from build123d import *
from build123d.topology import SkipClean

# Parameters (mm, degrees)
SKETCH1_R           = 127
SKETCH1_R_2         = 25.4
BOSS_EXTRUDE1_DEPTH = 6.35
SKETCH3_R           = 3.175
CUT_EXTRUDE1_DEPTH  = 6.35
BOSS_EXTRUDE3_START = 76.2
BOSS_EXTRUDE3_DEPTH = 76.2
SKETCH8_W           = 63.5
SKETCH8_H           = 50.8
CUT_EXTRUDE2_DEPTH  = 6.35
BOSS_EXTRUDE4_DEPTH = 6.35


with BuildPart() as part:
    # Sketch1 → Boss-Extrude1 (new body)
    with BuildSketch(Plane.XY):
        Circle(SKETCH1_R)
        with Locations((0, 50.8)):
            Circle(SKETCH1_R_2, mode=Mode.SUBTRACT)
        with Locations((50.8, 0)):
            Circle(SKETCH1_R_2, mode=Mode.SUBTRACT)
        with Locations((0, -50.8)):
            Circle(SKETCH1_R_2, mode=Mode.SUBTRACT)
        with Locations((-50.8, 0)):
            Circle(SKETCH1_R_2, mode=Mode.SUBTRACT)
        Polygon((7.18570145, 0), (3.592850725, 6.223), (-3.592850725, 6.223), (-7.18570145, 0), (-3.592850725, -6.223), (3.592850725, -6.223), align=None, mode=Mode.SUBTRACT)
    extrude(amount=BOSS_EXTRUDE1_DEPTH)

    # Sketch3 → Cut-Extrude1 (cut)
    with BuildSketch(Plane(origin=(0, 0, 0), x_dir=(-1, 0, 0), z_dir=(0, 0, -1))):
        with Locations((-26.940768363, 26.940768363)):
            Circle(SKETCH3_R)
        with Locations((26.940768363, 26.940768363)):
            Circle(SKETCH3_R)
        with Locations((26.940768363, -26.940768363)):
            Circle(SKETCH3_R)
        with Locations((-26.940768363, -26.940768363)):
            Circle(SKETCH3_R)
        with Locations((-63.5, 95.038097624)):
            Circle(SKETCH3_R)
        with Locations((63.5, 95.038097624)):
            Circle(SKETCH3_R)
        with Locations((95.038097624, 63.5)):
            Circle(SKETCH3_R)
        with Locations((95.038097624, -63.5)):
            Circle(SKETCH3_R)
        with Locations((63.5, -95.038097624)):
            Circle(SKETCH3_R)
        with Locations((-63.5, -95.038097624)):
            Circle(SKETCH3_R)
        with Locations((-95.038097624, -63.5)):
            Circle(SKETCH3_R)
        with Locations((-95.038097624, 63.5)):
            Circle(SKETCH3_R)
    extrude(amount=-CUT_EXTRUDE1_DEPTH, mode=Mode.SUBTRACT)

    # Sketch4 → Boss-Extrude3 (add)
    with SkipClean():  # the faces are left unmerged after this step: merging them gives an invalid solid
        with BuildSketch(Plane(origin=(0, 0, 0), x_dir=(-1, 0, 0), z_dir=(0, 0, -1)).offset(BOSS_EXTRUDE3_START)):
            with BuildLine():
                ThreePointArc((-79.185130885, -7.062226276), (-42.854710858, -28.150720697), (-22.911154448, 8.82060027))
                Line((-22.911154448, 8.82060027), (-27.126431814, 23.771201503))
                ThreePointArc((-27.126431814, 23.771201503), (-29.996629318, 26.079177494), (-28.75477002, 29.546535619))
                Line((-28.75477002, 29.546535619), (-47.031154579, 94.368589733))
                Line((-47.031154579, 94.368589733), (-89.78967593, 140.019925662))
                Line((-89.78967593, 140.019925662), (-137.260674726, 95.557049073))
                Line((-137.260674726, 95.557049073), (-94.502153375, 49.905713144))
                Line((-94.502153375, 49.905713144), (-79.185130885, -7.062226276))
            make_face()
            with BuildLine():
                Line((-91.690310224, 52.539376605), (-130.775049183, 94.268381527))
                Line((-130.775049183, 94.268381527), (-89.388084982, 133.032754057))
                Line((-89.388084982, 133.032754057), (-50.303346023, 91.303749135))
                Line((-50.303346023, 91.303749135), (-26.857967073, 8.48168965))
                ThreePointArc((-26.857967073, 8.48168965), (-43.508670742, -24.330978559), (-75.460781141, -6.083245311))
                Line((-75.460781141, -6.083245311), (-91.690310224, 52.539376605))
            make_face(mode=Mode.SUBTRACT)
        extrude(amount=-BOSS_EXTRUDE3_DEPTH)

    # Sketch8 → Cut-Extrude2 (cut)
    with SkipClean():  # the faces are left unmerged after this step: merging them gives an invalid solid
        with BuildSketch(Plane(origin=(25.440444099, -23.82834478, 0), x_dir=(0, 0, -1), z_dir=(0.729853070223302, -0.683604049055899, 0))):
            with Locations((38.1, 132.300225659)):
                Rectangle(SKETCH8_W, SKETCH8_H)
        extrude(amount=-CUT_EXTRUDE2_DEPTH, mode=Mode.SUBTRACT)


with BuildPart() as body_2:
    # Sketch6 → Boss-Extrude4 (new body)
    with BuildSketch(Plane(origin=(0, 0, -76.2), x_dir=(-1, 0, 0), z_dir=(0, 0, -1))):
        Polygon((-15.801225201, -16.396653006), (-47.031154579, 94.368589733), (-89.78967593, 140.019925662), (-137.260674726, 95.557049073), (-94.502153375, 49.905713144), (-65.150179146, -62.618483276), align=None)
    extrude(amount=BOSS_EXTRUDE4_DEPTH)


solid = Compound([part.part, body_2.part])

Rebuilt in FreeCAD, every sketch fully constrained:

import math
import FreeCAD as App
import Part
import Sketcher

V = App.Vector
Q = App.Units.Quantity


def add_polygon(sketch, points):
    """Adds a closed chain of lines whose ends are joined by coincident constraints."""
    first, n = sketch.GeometryCount, len(points)
    for a, b in zip(points, points[1:] + points[:1]):
        sketch.addGeometry(Part.LineSegment(App.Vector(*a, 0), App.Vector(*b, 0)), False)
    for i in range(n):
        sketch.addConstraint(Sketcher.Constraint("Coincident", first + i, 2, first + (i + 1) % n, 1))

doc = App.newDocument("Part")
body = doc.addObject("PartDesign::Body", "Body")

# Sketch on XY plane
sketch1 = doc.addObject("Sketcher::SketchObject", "Sketch")
body.addObject(sketch1)
sketch1.AttachmentSupport = (doc.XY_Plane, [""])
sketch1.MapMode = "FlatFace"
sketch1.addGeometry(Part.Circle(V(0, 0, 0), V(0, 0, 1), 127), False)  # 0
sketch1.addGeometry(Part.Circle(V(0, -51, 0), V(0, 0, 1), 25), False)  # 1
sketch1.addGeometry(Part.Circle(V(-51, 0, 0), V(0, 0, 1), 25), False)  # 2
add_polygon(sketch1, [(4, 6), (7, 0), (4, -6), (-4, -6), (-7, 0), (-4, 6)])  # lines 3-8
sketch1.addGeometry(Part.Circle(V(51, 0, 0), V(0, 0, 1), 25), False)  # 9
sketch1.addGeometry(Part.Circle(V(0, 51, 0), V(0, 0, 1), 25), False)  # 10
sketch1.addConstraint([
    Sketcher.Constraint("Horizontal", 5),
    Sketcher.Constraint("Horizontal", 8),
    Sketcher.Constraint("Coincident", 0, 3, -1, 1),
    Sketcher.Constraint("Equal", 1, 2),
    Sketcher.Constraint("Equal", 2, 9),
    Sketcher.Constraint("Equal", 9, 10),
    Sketcher.Constraint("Symmetric", 2, 3, 9, 3, -1, 1),
    Sketcher.Constraint("Symmetric", 1, 3, 10, 3, -1, 1),
    Sketcher.Constraint("Symmetric", 3, 2, 6, 2, -1, 1),
    Sketcher.Constraint("Symmetric", 4, 2, 7, 2, -1, 1),
    Sketcher.Constraint("PointOnObject", 1, 3, -2),
    Sketcher.Constraint("PointOnObject", 2, 3, -1),
    Sketcher.Constraint("PointOnObject", 3, 2, -1),
    Sketcher.Constraint("Parallel", 3, 6),
    Sketcher.Constraint("Vertical", 5, 2, 7, 2),
    Sketcher.Constraint("Diameter", 0, Q("10 in")),
    Sketcher.Constraint("Diameter", 1, Q("2 in")),
    Sketcher.Constraint("DistanceY", 1, 3, -1, 1, Q("2 in")),
    Sketcher.Constraint("DistanceX", 2, 3, -1, 1, Q("2 in")),
    Sketcher.Constraint("Angle", 3, Q("-60 deg")),
    Sketcher.Constraint("DistanceY", 5, 2, 7, 2, Q("0.49 in")),
    Sketcher.Constraint("DistanceX", 5, 2, 5, 1, Q("7.185701 mm")),
])
pad1 = doc.addObject("PartDesign::Pad", "Pad")
body.addObject(pad1)
pad1.Profile = sketch1
pad1.Length = Q("0.25 in")

# Sketch on XY plane
sketch2 = doc.addObject("Sketcher::SketchObject", "Sketch001")
body.addObject(sketch2)
sketch2.AttachmentSupport = (doc.XY_Plane, [""])
sketch2.MapMode = "FlatFace"
sketch2.addGeometry([
    Part.Circle(V(26.9, 26.9, 0), V(0, 0, 1), 3.2),  # 0
    Part.Circle(V(-26.9, 26.9, 0), V(0, 0, 1), 3.2),  # 1
    Part.Circle(V(-26.9, -26.9, 0), V(0, 0, 1), 3.2),  # 2
    Part.Circle(V(26.9, -26.9, 0), V(0, 0, 1), 3.2),  # 3
    Part.Circle(V(63.5, 95, 0), V(0, 0, 1), 3.2),  # 4
    Part.Circle(V(-63.5, 95, 0), V(0, 0, 1), 3.2),  # 5
    Part.Circle(V(-95, 63.5, 0), V(0, 0, 1), 3.2),  # 6
    Part.Circle(V(-95, -63.5, 0), V(0, 0, 1), 3.2),  # 7
    Part.Circle(V(-63.5, -95, 0), V(0, 0, 1), 3.2),  # 8
    Part.Circle(V(63.5, -95, 0), V(0, 0, 1), 3.2),  # 9
    Part.Circle(V(95, -63.5, 0), V(0, 0, 1), 3.2),  # 10
    Part.Circle(V(95, 63.5, 0), V(0, 0, 1), 3.2),  # 11
], False)
sketch2.addConstraint([
    Sketcher.Constraint("Equal", 0, 1),
    Sketcher.Constraint("Equal", 1, 2),
    Sketcher.Constraint("Equal", 2, 3),
    Sketcher.Constraint("Equal", 3, 4),
    Sketcher.Constraint("Equal", 4, 5),
    Sketcher.Constraint("Equal", 5, 6),
    Sketcher.Constraint("Equal", 6, 7),
    Sketcher.Constraint("Equal", 7, 8),
    Sketcher.Constraint("Equal", 8, 9),
    Sketcher.Constraint("Equal", 9, 10),
    Sketcher.Constraint("Equal", 10, 11),
    Sketcher.Constraint("Symmetric", 0, 3, 2, 3, -1, 1),
    Sketcher.Constraint("Symmetric", 1, 3, 3, 3, -1, 1),
    Sketcher.Constraint("Symmetric", 4, 3, 8, 3, -1, 1),
    Sketcher.Constraint("Symmetric", 5, 3, 9, 3, -1, 1),
    Sketcher.Constraint("Symmetric", 6, 3, 10, 3, -1, 1),
    Sketcher.Constraint("Symmetric", 7, 3, 11, 3, -1, 1),
    Sketcher.Constraint("Symmetric", 0, 3, 1, 3, -2),
    Sketcher.Constraint("Symmetric", 4, 3, 5, 3, -2),
    Sketcher.Constraint("Symmetric", 7, 3, 10, 3, -2),
    Sketcher.Constraint("Diameter", 0, Q("0.25 in")),
    Sketcher.Constraint("DistanceX", 5, 3, 4, 3, Q("5 in")),
    Sketcher.Constraint("DistanceY", 7, 3, 6, 3, Q("5 in")),
    Sketcher.Constraint("DistanceX", -1, 1, 0, 3, Q("26.940768 mm")),
    Sketcher.Constraint("DistanceY", -1, 1, 0, 3, Q("26.940768 mm")),
    Sketcher.Constraint("DistanceY", 0, 3, 4, 3, Q("68.097329 mm")),
    Sketcher.Constraint("DistanceX", 6, 3, 1, 3, Q("68.097329 mm")),
])
pocket1 = doc.addObject("PartDesign::Pocket", "Pocket")
body.addObject(pocket1)
pocket1.Profile = sketch2
pocket1.Length = Q("0.25 in")
pocket1.Reversed = True

# Sketch on XY plane
sketch3 = doc.addObject("Sketcher::SketchObject", "Sketch002")
body.addObject(sketch3)
sketch3.AttachmentSupport = (doc.XY_Plane, [""])
sketch3.MapMode = "FlatFace"
sketch3.AttachmentOffset = App.Placement(V(0, 0, -3 * 25.4), App.Rotation())
sketch3.addGeometry([
    Part.ArcOfCircle(Part.Circle(V(50.8, 0, 0), V(0, 0, 1), 29.250482), math.radians(162.449035), math.radians(346.028474)),  # 0
    Part.LineSegment(V(22.911154, 8.8206, 0), V(27.126432, 23.771202, 0)),  # 1
    Part.ArcOfCircle(Part.Circle(V(26.940768, 26.940768, 0), V(0, 0, 1), 3.175), math.radians(-86.647621), math.radians(55.156342)),  # 2
    Part.LineSegment(V(28.75477, 29.546536, 0), V(47.031155, 94.36859, 0)),  # 3
    Part.LineSegment(V(47.031155, 94.36859, 0), V(89.789676, 140.019926, 0)),  # 4
    Part.LineSegment(V(89.789676, 140.019926, 0), V(137.260675, 95.557049, 0)),  # 5
    Part.LineSegment(V(137.260675, 95.557049, 0), V(94.502153, 49.905713, 0)),  # 6
    Part.LineSegment(V(94.502153, 49.905713, 0), V(79.185131, -7.062226, 0)),  # 7
    Part.LineSegment(V(75.460781, -6.083245, 0), V(91.69031, 52.539377, 0)),  # 8
    Part.LineSegment(V(91.69031, 52.539377, 0), V(130.775049, 94.268382, 0)),  # 9
    Part.LineSegment(V(130.775049, 94.268382, 0), V(89.388085, 133.032754, 0)),  # 10
    Part.LineSegment(V(89.388085, 133.032754, 0), V(50.303346, 91.303749, 0)),  # 11
    Part.LineSegment(V(50.303346, 91.303749, 0), V(26.857967, 8.48169, 0)),  # 12
    Part.ArcOfCircle(Part.Circle(V(50.8, 0, 0), V(0, 0, 1), 25.4), math.radians(160.492832), math.radians(346.143095)),  # 13
], False)
sketch3.addConstraint([
    Sketcher.Constraint("Coincident", 0, 1, 1, 1),
    Sketcher.Constraint("Coincident", 1, 2, 2, 1),
    Sketcher.Constraint("Coincident", 2, 2, 3, 1),
    Sketcher.Constraint("Coincident", 3, 2, 4, 1),
    Sketcher.Constraint("Coincident", 4, 2, 5, 1),
    Sketcher.Constraint("Coincident", 5, 2, 6, 1),
    Sketcher.Constraint("Coincident", 6, 2, 7, 1),
    Sketcher.Constraint("Coincident", 7, 2, 0, 2),
    Sketcher.Constraint("Coincident", 8, 2, 9, 1),
    Sketcher.Constraint("Coincident", 9, 2, 10, 1),
    Sketcher.Constraint("Coincident", 10, 2, 11, 1),
    Sketcher.Constraint("Coincident", 11, 2, 12, 1),
    Sketcher.Constraint("Coincident", 12, 2, 13, 1),
    Sketcher.Constraint("Coincident", 13, 2, 8, 1),
    Sketcher.Constraint("Coincident", 13, 3, 0, 3),
    Sketcher.Constraint("PointOnObject", 0, 3, -1),
    Sketcher.Constraint("Radius", 13, Q("1 in")),
    Sketcher.Constraint("DistanceX", -1, 1, 0, 3, Q("2 in")),
    Sketcher.Constraint("Radius", 2, Q("0.125 in")),
    Sketcher.Constraint("Radius", 0, Q("29.250482 mm")),
    Sketcher.Constraint("DistanceY", -1, 1, 0, 1, Q("8.8206 mm")),
    Sketcher.Constraint("DistanceY", -1, 1, 1, 2, Q("23.771202 mm")),
    Sketcher.Constraint("DistanceX", 2, 3, 2, 2, Q("1.814002 mm")),
    Sketcher.Constraint("DistanceX", 0, 1, 3, 2, Q("24.12 mm")),
    Sketcher.Constraint("DistanceX", 4, 2, 5, 2, Q("47.470999 mm")),
    Sketcher.Constraint("DistanceX", 3, 2, 6, 2, Q("47.470999 mm")),
    Sketcher.Constraint("DistanceX", 1, 2, 7, 2, Q("52.058699 mm")),
    Sketcher.Constraint("DistanceX", 12, 2, 2, 3, Q("0.082801 mm")),
    Sketcher.Constraint("Distance", 1, Q("15.533481 mm")),
    Sketcher.Constraint("Distance", 9, Q("57.174528 mm")),
    Sketcher.Constraint("Distance", 11, Q("57.174528 mm")),
    Sketcher.Constraint("Distance", 12, Q("86.07659 mm")),
    Sketcher.Constraint("DistanceX", -1, 1, 2, 3, Q("26.940768 mm")),
    Sketcher.Constraint("DistanceY", -1, 1, 3, 2, Q("94.36859 mm")),
    Sketcher.Constraint("DistanceY", -1, 1, 5, 2, Q("95.557049 mm")),
    Sketcher.Constraint("DistanceX", -1, 1, 8, 2, Q("91.69031 mm")),
    Sketcher.Constraint("DistanceX", -1, 1, 9, 2, Q("130.775049 mm")),
    Sketcher.Constraint("DistanceY", -1, 1, 9, 2, Q("94.268382 mm")),
    Sketcher.Constraint("DistanceY", -1, 1, 11, 2, Q("91.303749 mm")),
    Sketcher.Constraint("DistanceX", -1, 1, 13, 2, Q("75.460781 mm")),
    Sketcher.Constraint("DistanceX", 3, 2, 4, 2, Q("42.758521 mm")),
    Sketcher.Constraint("DistanceY", 2, 2, 4, 2, Q("110.47339 mm")),
    Sketcher.Constraint("DistanceY", 7, 2, 6, 2, Q("56.967939 mm")),
    Sketcher.Constraint("DistanceX", 10, 2, 4, 2, Q("0.401591 mm")),
])
pad2 = doc.addObject("PartDesign::Pad", "Pad001")
body.addObject(pad2)
pad2.Profile = sketch3
pad2.Length = Q("3 in")

# Sketch on an angled plane
sketch4 = doc.addObject("Sketcher::SketchObject", "Sketch003")
body.addObject(sketch4)
sketch4.Placement = App.Placement(V(25.440444, -23.828345, 0), App.Rotation(V(0, 0, -1), V(0.683604049, 0.72985307, 0), V(0.72985307, -0.683604049, 0), "ZXY"))
add_polygon(sketch4, [(6, 158), (6, 107), (70, 107), (70, 158)])  # lines 0-3
sketch4.addConstraint([
    Sketcher.Constraint("Vertical", 0),
    Sketcher.Constraint("Horizontal", 1),
    Sketcher.Constraint("Vertical", 2),
    Sketcher.Constraint("Horizontal", 3),
    Sketcher.Constraint("DistanceY", 0, 2, 0, 1, Q("2 in")),
    Sketcher.Constraint("DistanceX", 1, 1, 1, 2, Q("2.5 in")),
    Sketcher.Constraint("DistanceX", -1, 1, 0, 2, Q("0.25 in")),
    Sketcher.Constraint("DistanceY", -1, 1, 0, 2, Q("106.900226 mm")),
])
pocket2 = doc.addObject("PartDesign::Pocket", "Pocket001")
body.addObject(pocket2)
pocket2.Profile = sketch4
pocket2.Length = Q("0.25 in")
body2 = doc.addObject("PartDesign::Body", "Body001")

# Sketch on XY plane
sketch5 = doc.addObject("Sketcher::SketchObject", "Sketch004")
body2.addObject(sketch5)
sketch5.AttachmentSupport = (doc.getObject("XY_Plane001"), [""])
sketch5.MapMode = "FlatFace"
sketch5.AttachmentOffset = App.Placement(V(0, 0, -3 * 25.4), App.Rotation())
add_polygon(sketch5, [(16, -16), (47, 94), (90, 140), (137, 96), (95, 50), (65, -63)])  # lines 0-5
sketch5.addConstraint([
    Sketcher.Constraint("Perpendicular", 1, 2),
    Sketcher.Constraint("Perpendicular", 2, 3),
    Sketcher.Constraint("Perpendicular", 3, 5),
    Sketcher.Constraint("Equal", 1, 3),
    Sketcher.Constraint("DistanceX", 1, 2, 2, 2, Q("47.470999 mm")),
    Sketcher.Constraint("DistanceY", -1, 1, 0, 2, Q("94.36859 mm")),
    Sketcher.Constraint("DistanceY", -1, 1, 2, 2, Q("95.557049 mm")),
    Sketcher.Constraint("DistanceX", -1, 1, 4, 2, Q("65.150179 mm")),
    Sketcher.Constraint("DistanceX", 0, 2, 1, 2, Q("42.758521 mm")),
    Sketcher.Constraint("DistanceY", 4, 2, 1, 2, Q("202.638409 mm")),
    Sketcher.Constraint("DistanceY", 4, 2, 5, 2, Q("46.22183 mm")),
    Sketcher.Constraint("DistanceX", 5, 2, 3, 2, Q("78.700928 mm")),
])
pad3 = doc.addObject("PartDesign::Pad", "Pad002")
body2.addObject(pad3)
pad3.Profile = sketch5
pad3.Length = Q("0.25 in")
pad3.Reversed = True

doc.recompute()
